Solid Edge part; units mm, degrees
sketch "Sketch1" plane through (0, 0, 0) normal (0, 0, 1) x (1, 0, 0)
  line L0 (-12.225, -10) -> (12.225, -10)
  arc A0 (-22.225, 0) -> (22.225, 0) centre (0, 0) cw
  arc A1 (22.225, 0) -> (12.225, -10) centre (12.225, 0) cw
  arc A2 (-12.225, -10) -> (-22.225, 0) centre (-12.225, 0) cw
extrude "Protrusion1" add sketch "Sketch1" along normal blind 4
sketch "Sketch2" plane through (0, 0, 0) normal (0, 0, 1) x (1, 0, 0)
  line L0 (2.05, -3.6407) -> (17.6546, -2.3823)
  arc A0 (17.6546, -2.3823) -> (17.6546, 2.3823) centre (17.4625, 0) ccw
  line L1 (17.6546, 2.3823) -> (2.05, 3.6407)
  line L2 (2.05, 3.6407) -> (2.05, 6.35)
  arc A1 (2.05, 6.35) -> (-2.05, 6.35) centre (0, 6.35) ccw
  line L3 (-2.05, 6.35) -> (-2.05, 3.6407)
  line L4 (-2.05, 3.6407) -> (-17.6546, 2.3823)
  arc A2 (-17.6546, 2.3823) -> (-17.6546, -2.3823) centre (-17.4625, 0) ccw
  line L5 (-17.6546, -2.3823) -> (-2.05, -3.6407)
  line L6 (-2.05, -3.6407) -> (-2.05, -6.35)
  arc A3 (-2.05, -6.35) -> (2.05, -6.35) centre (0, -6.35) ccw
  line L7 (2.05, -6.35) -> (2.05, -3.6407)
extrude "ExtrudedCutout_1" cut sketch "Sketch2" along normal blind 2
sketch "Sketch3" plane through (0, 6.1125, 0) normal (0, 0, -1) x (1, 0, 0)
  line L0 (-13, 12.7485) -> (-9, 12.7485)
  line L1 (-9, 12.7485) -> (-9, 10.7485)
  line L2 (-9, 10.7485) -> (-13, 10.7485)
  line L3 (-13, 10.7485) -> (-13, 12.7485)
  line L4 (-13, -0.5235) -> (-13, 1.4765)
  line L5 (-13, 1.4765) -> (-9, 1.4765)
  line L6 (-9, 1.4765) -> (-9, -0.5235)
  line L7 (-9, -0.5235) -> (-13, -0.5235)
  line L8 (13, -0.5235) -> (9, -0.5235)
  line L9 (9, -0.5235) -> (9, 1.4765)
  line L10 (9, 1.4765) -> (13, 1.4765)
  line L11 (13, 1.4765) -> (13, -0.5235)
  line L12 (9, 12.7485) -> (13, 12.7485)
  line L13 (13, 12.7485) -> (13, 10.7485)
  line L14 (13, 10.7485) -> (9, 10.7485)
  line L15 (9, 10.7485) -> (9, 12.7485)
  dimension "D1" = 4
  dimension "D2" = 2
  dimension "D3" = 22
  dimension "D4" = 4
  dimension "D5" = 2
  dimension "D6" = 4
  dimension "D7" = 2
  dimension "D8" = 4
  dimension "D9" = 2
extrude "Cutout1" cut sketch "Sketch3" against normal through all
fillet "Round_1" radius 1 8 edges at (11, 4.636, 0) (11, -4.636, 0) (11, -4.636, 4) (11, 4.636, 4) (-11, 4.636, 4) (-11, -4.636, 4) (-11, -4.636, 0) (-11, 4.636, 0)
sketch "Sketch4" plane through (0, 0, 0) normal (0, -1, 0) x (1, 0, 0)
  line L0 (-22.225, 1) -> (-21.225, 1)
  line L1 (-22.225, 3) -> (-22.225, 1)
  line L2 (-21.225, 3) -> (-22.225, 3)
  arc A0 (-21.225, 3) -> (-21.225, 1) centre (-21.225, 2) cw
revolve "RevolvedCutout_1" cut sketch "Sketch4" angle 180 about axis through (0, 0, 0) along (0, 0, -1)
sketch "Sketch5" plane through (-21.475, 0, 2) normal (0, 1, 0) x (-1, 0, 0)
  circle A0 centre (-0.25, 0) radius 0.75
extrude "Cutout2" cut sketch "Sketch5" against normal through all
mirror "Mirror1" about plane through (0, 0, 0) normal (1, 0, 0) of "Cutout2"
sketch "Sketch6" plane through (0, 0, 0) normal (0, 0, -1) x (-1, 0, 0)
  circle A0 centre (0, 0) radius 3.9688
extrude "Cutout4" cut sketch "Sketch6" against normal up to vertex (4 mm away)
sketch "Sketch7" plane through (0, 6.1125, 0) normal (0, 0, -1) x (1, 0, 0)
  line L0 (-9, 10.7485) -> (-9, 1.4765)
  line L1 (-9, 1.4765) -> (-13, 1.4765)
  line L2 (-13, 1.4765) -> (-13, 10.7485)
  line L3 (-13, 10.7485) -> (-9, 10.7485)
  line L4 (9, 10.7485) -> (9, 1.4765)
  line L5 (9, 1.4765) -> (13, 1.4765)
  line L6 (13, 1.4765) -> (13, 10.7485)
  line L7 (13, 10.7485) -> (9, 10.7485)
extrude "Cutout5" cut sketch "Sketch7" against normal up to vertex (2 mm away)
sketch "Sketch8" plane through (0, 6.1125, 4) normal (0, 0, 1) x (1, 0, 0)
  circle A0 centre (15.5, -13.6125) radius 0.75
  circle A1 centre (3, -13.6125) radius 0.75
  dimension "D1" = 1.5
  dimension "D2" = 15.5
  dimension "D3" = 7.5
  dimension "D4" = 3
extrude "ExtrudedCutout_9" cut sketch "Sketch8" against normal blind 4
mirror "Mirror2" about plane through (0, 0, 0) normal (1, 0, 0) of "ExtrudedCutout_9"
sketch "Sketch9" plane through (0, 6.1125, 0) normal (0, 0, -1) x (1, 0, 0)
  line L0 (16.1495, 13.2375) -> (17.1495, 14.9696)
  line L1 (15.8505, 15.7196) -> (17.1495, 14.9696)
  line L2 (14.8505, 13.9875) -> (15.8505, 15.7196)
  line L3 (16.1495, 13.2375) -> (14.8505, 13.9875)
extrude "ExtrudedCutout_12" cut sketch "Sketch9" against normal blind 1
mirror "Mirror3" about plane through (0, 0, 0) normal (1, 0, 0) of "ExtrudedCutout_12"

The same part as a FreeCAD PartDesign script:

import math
import FreeCAD as App
import Part
import Sketcher
Q = App.Units.Quantity


def edges_at(feature, points):
    """Names of the edges that pass closest to the given points."""
    edges = feature.Shape.Edges
    near = lambda p: min(range(len(edges)), key=lambda i: edges[i].distToShape(Part.Vertex(*p))[0])
    return sorted({f"Edge{near(p) + 1}" for p in points})


def add_polygon(sketch, points):
    """Adds a closed chain of lines whose ends are joined by coincident constraints."""
    first, n = sketch.GeometryCount, len(points)
    for a, b in zip(points, points[1:] + points[:1]):
        sketch.addGeometry(Part.LineSegment(App.Vector(*a, 0), App.Vector(*b, 0)), False)
    for i in range(n):
        sketch.addConstraint(Sketcher.Constraint("Coincident", first + i, 2, first + (i + 1) % n, 1))

doc = App.newDocument("Part")
body = doc.addObject("PartDesign::Body", "Body")

# Sketch on XY plane
sketch1 = body.newObject("Sketcher::SketchObject", "Sketch")
sketch1.AttachmentSupport = (doc.getObject("XY_Plane"), [""])
sketch1.MapMode = "FlatFace"
sketch1.addGeometry([
    Part.ArcOfCircle(Part.Circle(App.Vector(-12, 0, 0), App.Vector(0, 0, 1), 10), math.radians(180), math.radians(270)),
    Part.LineSegment(App.Vector(-12, -10, 0), App.Vector(12, -10, 0)),
    Part.ArcOfCircle(Part.Circle(App.Vector(12, 0, 0), App.Vector(0, 0, 1), 10), math.radians(-90), math.radians(0)),
    Part.ArcOfCircle(Part.Circle(App.Vector(0, 0, 0), App.Vector(0, 0, 1), 22), math.radians(0), math.radians(180)),
], False)
sketch1.addConstraint([
    Sketcher.Constraint("Tangent", 0, 2, 1, 1),
    Sketcher.Constraint("Tangent", 1, 2, 2, 1),
    Sketcher.Constraint("Tangent", 2, 2, 3, 1),
    Sketcher.Constraint("Tangent", 3, 2, 0, 1),
    Sketcher.Constraint("Horizontal", 1),
    Sketcher.Constraint("Coincident", 3, 3, -1, 1),
    Sketcher.Constraint("Equal", 0, 2),
    Sketcher.Constraint("PointOnObject", 0, 3, -1),
    Sketcher.Constraint("Radius", 0, Q("10 mm")),
    Sketcher.Constraint("Radius", 3, Q("22.225 mm")),
])
pad1 = body.newObject("PartDesign::Pad", "Pad")
pad1.Profile = sketch1
pad1.Length = 4

# Sketch on XY plane
sketch2 = body.newObject("Sketcher::SketchObject", "Sketch001")
sketch2.AttachmentSupport = (doc.getObject("XY_Plane"), [""])
sketch2.MapMode = "FlatFace"
sketch2.addGeometry([
    Part.LineSegment(App.Vector(2, -6.3, 0), App.Vector(2, -3.6, 0)),  # 0
    Part.LineSegment(App.Vector(2, -3.6, 0), App.Vector(17.7, -2.4, 0)),  # 1
    Part.ArcOfCircle(Part.Circle(App.Vector(17.5, 0, 0), App.Vector(0, 0, 1), 2.4), math.radians(-85), math.radians(85)),  # 2
    Part.LineSegment(App.Vector(17.7, 2.4, 0), App.Vector(2, 3.6, 0)),  # 3
    Part.LineSegment(App.Vector(2, 3.6, 0), App.Vector(2, 6.3, 0)),  # 4
    Part.ArcOfCircle(Part.Circle(App.Vector(0, 6.3, 0), App.Vector(0, 0, 1), 2), math.radians(0), math.radians(180)),  # 5
    Part.LineSegment(App.Vector(-2, 6.3, 0), App.Vector(-2, 3.6, 0)),  # 6
    Part.LineSegment(App.Vector(-2, 3.6, 0), App.Vector(-17.7, 2.4, 0)),  # 7
    Part.ArcOfCircle(Part.Circle(App.Vector(-17.5, 0, 0), App.Vector(0, 0, 1), 2.4), math.radians(95), math.radians(265)),  # 8
    Part.LineSegment(App.Vector(-17.7, -2.4, 0), App.Vector(-2, -3.6, 0)),  # 9
    Part.LineSegment(App.Vector(-2, -3.6, 0), App.Vector(-2, -6.3, 0)),  # 10
    Part.ArcOfCircle(Part.Circle(App.Vector(0, -6.3, 0), App.Vector(0, 0, 1), 2), math.radians(180), math.radians(360)),  # 11
], False)
sketch2.addConstraint([
    Sketcher.Constraint("Coincident", 0, 2, 1, 1),
    Sketcher.Constraint("Tangent", 1, 2, 2, 1),
    Sketcher.Constraint("Tangent", 2, 2, 3, 1),
    Sketcher.Constraint("Coincident", 3, 2, 4, 1),
    Sketcher.Constraint("Tangent", 4, 2, 5, 1),
    Sketcher.Constraint("Tangent", 5, 2, 6, 1),
    Sketcher.Constraint("Coincident", 6, 2, 7, 1),
    Sketcher.Constraint("Tangent", 7, 2, 8, 1),
    Sketcher.Constraint("Tangent", 8, 2, 9, 1),
    Sketcher.Constraint("Coincident", 9, 2, 10, 1),
    Sketcher.Constraint("Tangent", 10, 2, 11, 1),
    Sketcher.Constraint("Tangent", 11, 2, 0, 1),
    Sketcher.Constraint("Vertical", 0),
    Sketcher.Constraint("Vertical", 4),
    Sketcher.Constraint("Vertical", 6),
    Sketcher.Constraint("Vertical", 10),
    Sketcher.Constraint("Equal", 2, 8),
    Sketcher.Constraint("Equal", 5, 11),
    Sketcher.Constraint("Symmetric", 2, 3, 8, 3, -1, 1),
    Sketcher.Constraint("Symmetric", 5, 3, 11, 3, -1, 1),
    Sketcher.Constraint("Symmetric", 3, 2, 6, 2, -2),
    Sketcher.Constraint("Symmetric", 1, 2, 8, 2, -2),
    Sketcher.Constraint("Parallel", 1, 7),
    Sketcher.Constraint("Radius", 2, Q("2.39 mm")),
    Sketcher.Constraint("Radius", 5, Q("2.05 mm")),
    Sketcher.Constraint("Angle", 1, Q("4.6105 deg")),
    Sketcher.Constraint("DistanceY", 11, 3, 5, 3, Q("12.7 mm")),
    Sketcher.Constraint("DistanceY", 0, 1, 0, 2, Q("2.7093 mm")),
])
pocket1 = body.newObject("PartDesign::Pocket", "Pocket")
pocket1.Profile = sketch2
pocket1.Length = 2
pocket1.Reversed = True

# Sketch on XY plane
sketch3 = body.newObject("Sketcher::SketchObject", "Sketch002")
sketch3.AttachmentSupport = (doc.getObject("XY_Plane"), [""])
sketch3.MapMode = "FlatFace"
add_polygon(sketch3, [(-9, -6.6), (-13, -6.6), (-13, -4.6), (-9, -4.6)])  # lines 0-3
add_polygon(sketch3, [(-13, 4.6), (-13, 6.6), (-9, 6.6), (-9, 4.6)])  # lines 4-7
add_polygon(sketch3, [(9, 6.6), (13, 6.6), (13, 4.6), (9, 4.6)])  # lines 8-11
add_polygon(sketch3, [(13, -6.6), (9, -6.6), (9, -4.6), (13, -4.6)])  # lines 12-15
sketch3.addConstraint([
    Sketcher.Constraint("Horizontal", 0),
    Sketcher.Constraint("Vertical", 1),
    Sketcher.Constraint("Horizontal", 2),
    Sketcher.Constraint("Vertical", 3),
    Sketcher.Constraint("Vertical", 4),
    Sketcher.Constraint("Horizontal", 5),
    Sketcher.Constraint("Vertical", 6),
    Sketcher.Constraint("Horizontal", 7),
    Sketcher.Constraint("Horizontal", 8),
    Sketcher.Constraint("Vertical", 9),
    Sketcher.Constraint("Horizontal", 10),
    Sketcher.Constraint("Vertical", 11),
    Sketcher.Constraint("Horizontal", 12),
    Sketcher.Constraint("Vertical", 13),
    Sketcher.Constraint("Horizontal", 14),
    Sketcher.Constraint("Vertical", 15),
    Sketcher.Constraint("Symmetric", 0, 2, 8, 2, -1, 1),
    Sketcher.Constraint("Symmetric", 2, 2, 10, 2, -1, 1),
    Sketcher.Constraint("Symmetric", 5, 2, 12, 2, -1, 1),
    Sketcher.Constraint("Symmetric", 7, 2, 14, 2, -1, 1),
    Sketcher.Constraint("Symmetric", 4, 2, 8, 2, -2),
    Sketcher.Constraint("Symmetric", 6, 2, 10, 2, -2),
    Sketcher.Constraint("DistanceX", 0, 2, 0, 1, Q("4 mm")),
    Sketcher.Constraint("DistanceY", 1, 1, 1, 2, Q("2 mm")),
    Sketcher.Constraint("DistanceX", 0, 2, -1, 1, Q("13 mm")),
    Sketcher.Constraint("DistanceY", 0, 2, -1, 1, Q("6.636 mm")),
])
pocket2 = body.newObject("PartDesign::Pocket", "Pocket001")
pocket2.Profile = sketch3
pocket2.Type = "ThroughAll"
pocket2.Reversed = True
doc.recompute()

fillet = body.newObject("PartDesign::Fillet", "Fillet")
fillet.Base = (pocket2, edges_at(pocket2, [
    (11, 4.636, 0),
    (11, -4.636, 0),
    (11, -4.636, 4),
    (11, 4.636, 4),
    (-11, 4.636, 4),
    (-11, -4.636, 4),
    (-11, -4.636, 0),
    (-11, 4.636, 0),
]))
fillet.Radius = 1

# Sketch on XZ plane
sketch4 = body.newObject("Sketcher::SketchObject", "Sketch003")
sketch4.AttachmentSupport = (doc.getObject("XZ_Plane"), [""])
sketch4.MapMode = "FlatFace"
sketch4.addGeometry([
    Part.LineSegment(App.Vector(-22.2, 3, 0), App.Vector(-22.2, 1, 0)),
    Part.LineSegment(App.Vector(-22.2, 1, 0), App.Vector(-21.2, 1, 0)),
    Part.ArcOfCircle(Part.Circle(App.Vector(-21.2, 2, 0), App.Vector(0, 0, 1), 1), math.radians(-90), math.radians(90)),
    Part.LineSegment(App.Vector(-21.2, 3, 0), App.Vector(-22.2, 3, 0)),
], False)
sketch4.addConstraint([
    Sketcher.Constraint("Coincident", 0, 2, 1, 1),
    Sketcher.Constraint("Tangent", 1, 2, 2, 1),
    Sketcher.Constraint("Tangent", 2, 2, 3, 1),
    Sketcher.Constraint("Coincident", 3, 2, 0, 1),
    Sketcher.Constraint("Vertical", 0),
    Sketcher.Constraint("Horizontal", 1),
    Sketcher.Constraint("Horizontal", 3),
    Sketcher.Constraint("Radius", 2, Q("1 mm")),
    Sketcher.Constraint("DistanceX", 1, 1, 1, 2, Q("1 mm")),
    Sketcher.Constraint("DistanceY", -1, 1, 2, 3, Q("2 mm")),
    Sketcher.Constraint("DistanceX", 2, 3, -1, 1, Q("21.225 mm")),
])
groove = body.newObject("PartDesign::Groove", "Groove")
groove.Profile = sketch4
groove.ReferenceAxis = (sketch4, ["V_Axis"])
groove.Angle = 180
groove.Reversed = True

# Sketch on XZ plane
sketch5 = body.newObject("Sketcher::SketchObject", "Sketch004")
sketch5.AttachmentSupport = (doc.getObject("XZ_Plane"), [""])
sketch5.MapMode = "FlatFace"
sketch5.addGeometry(Part.Circle(App.Vector(-21.2, 2, 0), App.Vector(0, 0, 1), 0.8), False)
sketch5.addConstraint([
    Sketcher.Constraint("Diameter", 0, Q("1.5 mm")),
    Sketcher.Constraint("DistanceY", -1, 1, 0, 3, Q("2 mm")),
    Sketcher.Constraint("DistanceX", 0, 3, -1, 1, Q("21.225 mm")),
])
pocket3 = body.newObject("PartDesign::Pocket", "Pocket002")
pocket3.Profile = sketch5
pocket3.Type = "ThroughAll"
pocket3.Reversed = True
doc.recompute()

mirrored = body.newObject("PartDesign::Mirrored", "Mirrored")
mirrored.Originals = [pocket3]
mirrored.MirrorPlane = (doc.getObject("YZ_Plane"), [""])
body.Tip = mirrored

# Sketch on XY plane
sketch6 = body.newObject("Sketcher::SketchObject", "Sketch005")
sketch6.AttachmentSupport = (doc.getObject("XY_Plane"), [""])
sketch6.MapMode = "FlatFace"
sketch6.addGeometry(Part.Circle(App.Vector(0, 0, 0), App.Vector(0, 0, 1), 4), False)
sketch6.addConstraint([
    Sketcher.Constraint("Coincident", 0, 3, -1, 1),
    Sketcher.Constraint("Diameter", 0, Q("7.9376 mm")),
])
pocket4 = body.newObject("PartDesign::Pocket", "Pocket003")
pocket4.Profile = sketch6
pocket4.Length = 4
pocket4.Reversed = True

# Sketch on XY plane
sketch7 = body.newObject("Sketcher::SketchObject", "Sketch006")
sketch7.AttachmentSupport = (doc.getObject("XY_Plane"), [""])
sketch7.MapMode = "FlatFace"
add_polygon(sketch7, [(-9, 4.6), (-9, -4.6), (-13, -4.6), (-13, 4.6)])  # lines 0-3
add_polygon(sketch7, [(13, -4.6), (9, -4.6), (9, 4.6), (13, 4.6)])  # lines 4-7
sketch7.addConstraint([
    Sketcher.Constraint("Vertical", 0),
    Sketcher.Constraint("Horizontal", 1),
    Sketcher.Constraint("Vertical", 2),
    Sketcher.Constraint("Horizontal", 3),
    Sketcher.Constraint("Horizontal", 4),
    Sketcher.Constraint("Vertical", 5),
    Sketcher.Constraint("Horizontal", 6),
    Sketcher.Constraint("Vertical", 7),
    Sketcher.Constraint("Symmetric", 3, 2, 4, 2, -1, 1),
    Sketcher.Constraint("Symmetric", 1, 2, 6, 2, -1, 1),
    Sketcher.Constraint("Horizontal", 1, 2, 4, 2),
    Sketcher.Constraint("DistanceX", 1, 2, 1, 1, Q("4 mm")),
    Sketcher.Constraint("DistanceX", 0, 2, -1, 1, Q("9 mm")),
    Sketcher.Constraint("DistanceY", 0, 2, 0, 1, Q("9.272 mm")),
])
pocket5 = body.newObject("PartDesign::Pocket", "Pocket004")
pocket5.Profile = sketch7
pocket5.Length = 2
pocket5.Reversed = True

# Sketch on XY plane
sketch8 = body.newObject("Sketcher::SketchObject", "Sketch007")
sketch8.AttachmentSupport = (doc.getObject("XY_Plane"), [""])
sketch8.MapMode = "FlatFace"
sketch8.AttachmentOffset = App.Placement(App.Vector(0, 0, 4), App.Rotation())
sketch8.addGeometry([
    Part.Circle(App.Vector(15.5, -7.5, 0), App.Vector(0, 0, 1), 0.8),
    Part.Circle(App.Vector(3, -7.5, 0), App.Vector(0, 0, 1), 0.8),
], False)
sketch8.addConstraint([
    Sketcher.Constraint("Equal", 0, 1),
    Sketcher.Constraint("Horizontal", 0, 3, 1, 3),
    Sketcher.Constraint("Diameter", 0, Q("1.5 mm")),
    Sketcher.Constraint("DistanceX", -1, 1, 1, 3, Q("3 mm")),
    Sketcher.Constraint("DistanceX", -1, 1, 0, 3, Q("15.5 mm")),
    Sketcher.Constraint("DistanceY", 0, 3, -1, 1, Q("7.5 mm")),
])
pocket6 = body.newObject("PartDesign::Pocket", "Pocket005")
pocket6.Profile = sketch8
pocket6.Length = 4
doc.recompute()

mirrored2 = body.newObject("PartDesign::Mirrored", "Mirrored001")
mirrored2.Originals = [pocket6]
mirrored2.MirrorPlane = (doc.getObject("YZ_Plane"), [""])
body.Tip = mirrored2

# Sketch on XY plane
sketch9 = body.newObject("Sketcher::SketchObject", "Sketch008")
sketch9.AttachmentSupport = (doc.getObject("XY_Plane"), [""])
sketch9.MapMode = "FlatFace"
add_polygon(sketch9, [(14.9, -7.9), (16.1, -7.1), (17.1, -8.9), (15.9, -9.6)])  # lines 0-3
sketch9.addConstraint([
    Sketcher.Constraint("Perpendicular", 0, 1),
    Sketcher.Constraint("Perpendicular", 1, 2),
    Sketcher.Constraint("Perpendicular", 2, 3),
    Sketcher.Constraint("Angle", 0, Q("30.0007 deg")),
    Sketcher.Constraint("Distance", 1, Q("2 mm")),
    Sketcher.Constraint("Distance", 0, Q("1.5 mm")),
    Sketcher.Constraint("DistanceY", 0, 2, -1, 1, Q("7.125 mm")),
    Sketcher.Constraint("DistanceX", -1, 1, 0, 2, Q("16.1495 mm")),
])
pocket7 = body.newObject("PartDesign::Pocket", "Pocket006")
pocket7.Profile = sketch9
pocket7.Length = 1
pocket7.Reversed = True
doc.recompute()

mirrored3 = body.newObject("PartDesign::Mirrored", "Mirrored002")
mirrored3.Originals = [pocket7]
mirrored3.MirrorPlane = (doc.getObject("YZ_Plane"), [""])
body.Tip = mirrored3

doc.recompute()
